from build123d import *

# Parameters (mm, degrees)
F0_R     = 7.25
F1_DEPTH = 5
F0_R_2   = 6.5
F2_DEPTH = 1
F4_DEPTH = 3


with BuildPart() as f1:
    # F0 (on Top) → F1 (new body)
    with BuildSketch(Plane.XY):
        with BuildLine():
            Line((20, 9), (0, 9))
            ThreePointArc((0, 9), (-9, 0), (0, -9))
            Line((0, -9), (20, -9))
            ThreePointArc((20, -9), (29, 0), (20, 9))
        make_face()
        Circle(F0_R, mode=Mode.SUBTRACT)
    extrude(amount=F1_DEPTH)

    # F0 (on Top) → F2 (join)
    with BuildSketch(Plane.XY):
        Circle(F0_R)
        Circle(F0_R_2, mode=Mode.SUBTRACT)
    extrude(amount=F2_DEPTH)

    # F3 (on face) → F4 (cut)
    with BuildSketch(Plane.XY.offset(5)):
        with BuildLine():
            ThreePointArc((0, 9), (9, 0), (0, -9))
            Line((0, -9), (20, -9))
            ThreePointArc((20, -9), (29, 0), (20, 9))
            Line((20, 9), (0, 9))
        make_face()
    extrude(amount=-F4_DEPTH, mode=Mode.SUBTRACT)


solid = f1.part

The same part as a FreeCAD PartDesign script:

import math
import FreeCAD as App
import Part
import Sketcher
from FreeCAD import Vector

doc = App.newDocument("Part")
body = doc.addObject("PartDesign::Body", "Body")

# Sketch on XY plane
sketch1 = body.newObject("Sketcher::SketchObject", "Sketch")
sketch1.AttachmentSupport = (doc.getObject("XY_Plane"), [""])
sketch1.MapMode = "FlatFace"
sketch1.addGeometry([
    Part.LineSegment(Vector(20, 9, 0), Vector(0, 9, 0)),  # 0
    Part.ArcOfCircle(Part.Circle(Vector(0, 0, 0), Vector(0, 0, 1), 9), math.radians(90), math.radians(270)),  # 1
    Part.LineSegment(Vector(0, -9, 0), Vector(20, -9, 0)),  # 2
    Part.ArcOfCircle(Part.Circle(Vector(20, 0, 0), Vector(0, 0, 1), 9), math.radians(-90), math.radians(90)),  # 3
    Part.Circle(Vector(0, 0, 0), Vector(0, 0, 1), 7.25),  # 4
], False)
sketch1.addConstraint([
    Sketcher.Constraint("Tangent", 0, 2, 1, 1),
    Sketcher.Constraint("Tangent", 1, 2, 2, 1),
    Sketcher.Constraint("Tangent", 2, 2, 3, 1),
    Sketcher.Constraint("Tangent", 3, 2, 0, 1),
    Sketcher.Constraint("Horizontal", 0),
    Sketcher.Constraint("Horizontal", 2),
    Sketcher.Constraint("Coincident", 1, 3, -1, 1),
    Sketcher.Constraint("Coincident", 4, 3, -1, 1),
    Sketcher.Constraint("Radius", 1, 9.0),
    Sketcher.Constraint("Diameter", 4, 14.5),
    Sketcher.Constraint("DistanceX", 0, 2, 0, 1, 20.0),
])
pad1 = body.newObject("PartDesign::Pad", "Pad")
pad1.Profile = sketch1
pad1.Length = 5

# Sketch on XY plane
sketch2 = body.newObject("Sketcher::SketchObject", "Sketch001")
sketch2.AttachmentSupport = (doc.getObject("XY_Plane"), [""])
sketch2.MapMode = "FlatFace"
sketch2.addGeometry([
    Part.Circle(Vector(0, 0, 0), Vector(0, 0, 1), 7.25),
    Part.Circle(Vector(0, 0, 0), Vector(0, 0, 1), 6.5),
], False)
sketch2.addConstraint([
    Sketcher.Constraint("Coincident", 0, 3, -1, 1),
    Sketcher.Constraint("Coincident", 1, 3, -1, 1),
    Sketcher.Constraint("Diameter", 1, 13.0),
    Sketcher.Constraint("Diameter", 0, 14.5),
])
pad2 = body.newObject("PartDesign::Pad", "Pad001")
pad2.Profile = sketch2
pad2.Length = 1

# Sketch on XY plane
sketch3 = body.newObject("Sketcher::SketchObject", "Sketch002")
sketch3.AttachmentSupport = (doc.getObject("XY_Plane"), [""])
sketch3.MapMode = "FlatFace"
sketch3.AttachmentOffset = App.Placement(Vector(0, 0, 5), App.Rotation())
sketch3.addGeometry([
    Part.ArcOfCircle(Part.Circle(Vector(0, 0, 0), Vector(0, 0, 1), 9), math.radians(-90), math.radians(90)),
    Part.LineSegment(Vector(0, -9, 0), Vector(20, -9, 0)),
    Part.ArcOfCircle(Part.Circle(Vector(20, 0, 0), Vector(0, 0, 1), 9), math.radians(-90), math.radians(90)),
    Part.LineSegment(Vector(20, 9, 0), Vector(0, 9, 0)),
], False)
sketch3.addConstraint([
    Sketcher.Constraint("Tangent", 0, 1, 1, 1),
    Sketcher.Constraint("Tangent", 1, 2, 2, 1),
    Sketcher.Constraint("Tangent", 2, 2, 3, 1),
    Sketcher.Constraint("Tangent", 3, 2, 0, 2),
    Sketcher.Constraint("Horizontal", 1),
    Sketcher.Constraint("Horizontal", 3),
    Sketcher.Constraint("Coincident", 0, 3, -1, 1),
    Sketcher.Constraint("Radius", 0, 9.0),
    Sketcher.Constraint("DistanceX", 1, 1, 1, 2, 20.0),
])
pocket1 = body.newObject("PartDesign::Pocket", "Pocket")
pocket1.Profile = sketch3
pocket1.Length = 3

doc.recompute()
